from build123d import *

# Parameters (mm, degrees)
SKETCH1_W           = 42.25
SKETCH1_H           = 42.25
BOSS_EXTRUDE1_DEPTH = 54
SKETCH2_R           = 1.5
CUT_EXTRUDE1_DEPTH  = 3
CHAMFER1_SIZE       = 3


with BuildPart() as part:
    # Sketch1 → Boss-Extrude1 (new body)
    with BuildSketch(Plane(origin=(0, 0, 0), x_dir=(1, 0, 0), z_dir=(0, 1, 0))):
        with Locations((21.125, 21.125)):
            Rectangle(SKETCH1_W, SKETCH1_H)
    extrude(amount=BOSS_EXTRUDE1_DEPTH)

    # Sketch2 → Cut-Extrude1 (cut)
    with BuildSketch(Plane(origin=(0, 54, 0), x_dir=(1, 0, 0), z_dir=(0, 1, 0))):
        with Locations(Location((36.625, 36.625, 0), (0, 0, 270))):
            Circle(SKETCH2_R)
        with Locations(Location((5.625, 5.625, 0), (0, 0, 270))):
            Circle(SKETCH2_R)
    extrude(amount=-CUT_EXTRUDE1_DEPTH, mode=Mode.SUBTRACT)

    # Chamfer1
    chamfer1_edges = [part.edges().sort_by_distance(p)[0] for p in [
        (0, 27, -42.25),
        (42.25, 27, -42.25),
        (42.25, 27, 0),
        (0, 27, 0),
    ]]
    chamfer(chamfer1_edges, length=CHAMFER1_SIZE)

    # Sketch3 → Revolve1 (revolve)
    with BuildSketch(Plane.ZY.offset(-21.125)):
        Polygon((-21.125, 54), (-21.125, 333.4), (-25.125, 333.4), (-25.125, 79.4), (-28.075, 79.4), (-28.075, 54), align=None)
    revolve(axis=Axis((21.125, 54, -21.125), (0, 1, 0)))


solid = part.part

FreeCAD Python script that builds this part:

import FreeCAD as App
import Part
import Sketcher
from FreeCAD import Vector
Q = App.Units.Quantity


def edges_at(feature, points):
    """Names of the edges that pass closest to the given points."""
    edges = feature.Shape.Edges
    near = lambda p: min(range(len(edges)), key=lambda i: edges[i].distToShape(Part.Vertex(*p))[0])
    return sorted({f"Edge{near(p) + 1}" for p in points})

doc = App.newDocument("Part")
body = doc.addObject("PartDesign::Body", "Body")

sketch1 = body.newObject("Sketcher::SketchObject", "Sketch")
sketch1.AttachmentSupport = (doc.getObject("XZ_Plane"), [""])
sketch1.MapMode = "FlatFace"
sketch1.addGeometry([
    Part.LineSegment(Vector(0, -42, 0), Vector(0, 0, 0)),
    Part.LineSegment(Vector(0, 0, 0), Vector(42, 0, 0)),
    Part.LineSegment(Vector(42, 0, 0), Vector(42, -42, 0)),
    Part.LineSegment(Vector(42, -42, 0), Vector(0, -42, 0)),
], False)
sketch1.addConstraint([
    Sketcher.Constraint("Coincident", 0, 2, 1, 1),
    Sketcher.Constraint("Coincident", 1, 2, 2, 1),
    Sketcher.Constraint("Coincident", 2, 2, 3, 1),
    Sketcher.Constraint("Coincident", 3, 2, 0, 1),
    Sketcher.Constraint("Vertical", 0),
    Sketcher.Constraint("Horizontal", 1),
    Sketcher.Constraint("Vertical", 2),
    Sketcher.Constraint("Horizontal", 3),
    Sketcher.Constraint("Coincident", 0, 2, -1, 1),
    Sketcher.Constraint("Equal", 3, 0),
    Sketcher.Constraint("DistanceX", 1, 1, 1, 2, Q("42.25 mm")),
])
pad1 = body.newObject("PartDesign::Pad", "Pad")
pad1.Profile = sketch1
pad1.Length = 54
pad1.Reversed = True

sketch2 = body.newObject("Sketcher::SketchObject", "Sketch001")
sketch2.AttachmentSupport = (doc.getObject("XZ_Plane"), [""])
sketch2.MapMode = "FlatFace"
sketch2.AttachmentOffset = App.Placement(Vector(0, 0, -54), App.Rotation())
sketch2.addGeometry([
    Part.Circle(Vector(36.6, -36.6, 0), Vector(0, 0, 1), 1.5),
    Part.Circle(Vector(5.6, -5.6, 0), Vector(0, 0, 1), 1.5),
], False)
sketch2.addConstraint([
    Sketcher.Constraint("Equal", 0, 1),
    Sketcher.Constraint("Diameter", 0, Q("3 mm")),
    Sketcher.Constraint("DistanceX", 1, 3, 0, 3, Q("31 mm")),
    Sketcher.Constraint("DistanceY", 0, 3, 1, 3, Q("31 mm")),
    Sketcher.Constraint("DistanceX", -1, 1, 0, 3, Q("36.625 mm")),
    Sketcher.Constraint("DistanceY", 0, 3, -1, 1, Q("36.625 mm")),
])
pocket1 = body.newObject("PartDesign::Pocket", "Pocket")
pocket1.Profile = sketch2
pocket1.Length = 3
pocket1.Reversed = True
doc.recompute()

chamfer = body.newObject("PartDesign::Chamfer", "Chamfer")
chamfer.Base = (pocket1, edges_at(pocket1, [
    (0, 27, -42.25),
    (42.25, 27, -42.25),
    (42.25, 27, 0),
    (0, 27, 0),
]))
chamfer.Size = 3

sketch3 = body.newObject("Sketcher::SketchObject", "Sketch002")
sketch3.AttachmentSupport = (doc.getObject("YZ_Plane"), [""])
sketch3.MapMode = "FlatFace"
sketch3.AttachmentOffset = App.Placement(Vector(0, 0, 21.125), App.Rotation())
sketch3.addGeometry([
    Part.LineSegment(Vector(54, -21.1, 0), Vector(333.4, -21.1, 0)),
    Part.LineSegment(Vector(333.4, -21.1, 0), Vector(333.4, -25.1, 0)),
    Part.LineSegment(Vector(333.4, -25.1, 0), Vector(79.4, -25.1, 0)),
    Part.LineSegment(Vector(79.4, -25.1, 0), Vector(79.4, -28.1, 0)),
    Part.LineSegment(Vector(79.4, -28.1, 0), Vector(54, -28.1, 0)),
    Part.LineSegment(Vector(54, -28.1, 0), Vector(54, -21.1, 0)),
], False)
sketch3.addGeometry(Part.LineSegment(Vector(54, -21.1, 0), Vector(333.4, -21.1, 0)), True)
sketch3.addConstraint([
    Sketcher.Constraint("Coincident", 0, 2, 1, 1),
    Sketcher.Constraint("Coincident", 1, 2, 2, 1),
    Sketcher.Constraint("Coincident", 2, 2, 3, 1),
    Sketcher.Constraint("Coincident", 3, 2, 4, 1),
    Sketcher.Constraint("Coincident", 4, 2, 5, 1),
    Sketcher.Constraint("Coincident", 5, 2, 0, 1),
    Sketcher.Constraint("Horizontal", 0),
    Sketcher.Constraint("Vertical", 1),
    Sketcher.Constraint("Horizontal", 2),
    Sketcher.Constraint("Vertical", 3),
    Sketcher.Constraint("Horizontal", 4),
    Sketcher.Constraint("Vertical", 5),
    Sketcher.Constraint("Horizontal", 6),
    Sketcher.Constraint("Coincident", 6, 1, 5, 2),
    Sketcher.Constraint("Vertical", 1, 2, 6, 2),
    Sketcher.Constraint("DistanceX", 2, 2, 2, 1, Q("254 mm")),
    Sketcher.Constraint("DistanceY", 1, 2, 1, 1, Q("4 mm")),
    Sketcher.Constraint("DistanceX", 0, 1, 0, 2, Q("279.4 mm")),
    Sketcher.Constraint("DistanceX", -1, 1, 4, 2, Q("54 mm")),
    Sketcher.Constraint("DistanceY", 3, 2, 3, 1, Q("2.95 mm")),
    Sketcher.Constraint("DistanceY", 0, 2, -1, 1, Q("21.125 mm")),
])
revolution = body.newObject("PartDesign::Revolution", "Revolution")
revolution.Profile = sketch3
revolution.ReferenceAxis = (sketch3, ["Axis0"])
revolution.Angle = 360

doc.recompute()
